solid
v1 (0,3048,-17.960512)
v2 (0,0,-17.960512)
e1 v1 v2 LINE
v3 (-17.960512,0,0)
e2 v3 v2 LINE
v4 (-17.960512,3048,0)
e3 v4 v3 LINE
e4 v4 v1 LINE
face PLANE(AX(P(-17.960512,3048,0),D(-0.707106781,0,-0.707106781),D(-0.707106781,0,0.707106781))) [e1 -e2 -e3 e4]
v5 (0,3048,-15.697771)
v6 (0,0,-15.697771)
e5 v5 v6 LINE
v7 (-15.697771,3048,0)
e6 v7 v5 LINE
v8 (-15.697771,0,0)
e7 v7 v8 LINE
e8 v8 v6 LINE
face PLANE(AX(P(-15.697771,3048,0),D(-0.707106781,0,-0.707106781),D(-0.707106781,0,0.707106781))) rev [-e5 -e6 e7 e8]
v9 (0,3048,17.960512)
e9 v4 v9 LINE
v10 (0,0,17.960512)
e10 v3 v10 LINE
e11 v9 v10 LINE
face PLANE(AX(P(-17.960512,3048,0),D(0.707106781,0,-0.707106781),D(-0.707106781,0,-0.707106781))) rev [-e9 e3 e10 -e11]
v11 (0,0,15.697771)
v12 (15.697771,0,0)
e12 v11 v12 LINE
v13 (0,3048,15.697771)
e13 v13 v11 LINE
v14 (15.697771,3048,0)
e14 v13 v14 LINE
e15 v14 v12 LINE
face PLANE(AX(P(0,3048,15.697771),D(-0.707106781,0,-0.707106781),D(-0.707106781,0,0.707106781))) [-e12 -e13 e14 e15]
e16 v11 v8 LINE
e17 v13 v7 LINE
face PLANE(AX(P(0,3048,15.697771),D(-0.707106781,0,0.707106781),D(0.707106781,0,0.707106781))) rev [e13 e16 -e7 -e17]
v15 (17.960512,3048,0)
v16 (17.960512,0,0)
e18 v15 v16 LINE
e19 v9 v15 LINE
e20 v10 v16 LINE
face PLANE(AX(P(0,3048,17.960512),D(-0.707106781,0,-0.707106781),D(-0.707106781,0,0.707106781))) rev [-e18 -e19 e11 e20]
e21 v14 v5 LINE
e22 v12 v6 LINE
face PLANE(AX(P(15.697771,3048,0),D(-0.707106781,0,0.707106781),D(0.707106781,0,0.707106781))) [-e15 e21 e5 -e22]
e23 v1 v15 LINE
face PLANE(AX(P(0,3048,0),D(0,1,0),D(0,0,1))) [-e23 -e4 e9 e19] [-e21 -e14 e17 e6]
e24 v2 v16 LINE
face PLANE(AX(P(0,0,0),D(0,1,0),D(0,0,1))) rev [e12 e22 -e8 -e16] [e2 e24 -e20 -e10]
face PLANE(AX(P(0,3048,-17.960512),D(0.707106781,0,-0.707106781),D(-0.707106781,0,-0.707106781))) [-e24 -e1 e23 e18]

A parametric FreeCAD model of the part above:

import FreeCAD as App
import Part
import Sketcher
Q = App.Units.Quantity

doc = App.newDocument("Part")
body = doc.addObject("PartDesign::Body", "Body")

sketch1 = body.newObject("Sketcher::SketchObject", "Sketch")
sketch1.AttachmentSupport = (doc.getObject("XZ_Plane"), [""])
sketch1.MapMode = "FlatFace"
sketch1.addGeometry(Part.LineSegment(App.Vector(0, -18, 0), App.Vector(-18, 0, 0)), False)
sketch1.addGeometry(Part.LineSegment(App.Vector(-18, 0, 0), App.Vector(0, 18, 0)), False)
sketch1.addGeometry(Part.LineSegment(App.Vector(0, 18, 0), App.Vector(18, 0, 0)), False)
sketch1.addGeometry(Part.LineSegment(App.Vector(18, 0, 0), App.Vector(0, -18, 0)), False)
sketch1.addGeometry(Part.LineSegment(App.Vector(0, 16, 0), App.Vector(-16, 0, 0)), False)
sketch1.addGeometry(Part.LineSegment(App.Vector(-16, 0, 0), App.Vector(0, -16, 0)), False)
sketch1.addGeometry(Part.LineSegment(App.Vector(0, -16, 0), App.Vector(16, 0, 0)), False)
sketch1.addGeometry(Part.LineSegment(App.Vector(16, 0, 0), App.Vector(0, 16, 0)), False)
sketch1.addConstraint(Sketcher.Constraint("Coincident", 0, 2, 1, 1))
sketch1.addConstraint(Sketcher.Constraint("Coincident", 1, 2, 2, 1))
sketch1.addConstraint(Sketcher.Constraint("Coincident", 2, 2, 3, 1))
sketch1.addConstraint(Sketcher.Constraint("Coincident", 3, 2, 0, 1))
sketch1.addConstraint(Sketcher.Constraint("Coincident", 4, 2, 5, 1))
sketch1.addConstraint(Sketcher.Constraint("Coincident", 5, 2, 6, 1))
sketch1.addConstraint(Sketcher.Constraint("Coincident", 6, 2, 7, 1))
sketch1.addConstraint(Sketcher.Constraint("Coincident", 7, 2, 4, 1))
sketch1.addConstraint(Sketcher.Constraint("Symmetric", 0, 2, 2, 2, -1, 1))
sketch1.addConstraint(Sketcher.Constraint("Symmetric", 1, 2, 3, 2, -1, 1))
sketch1.addConstraint(Sketcher.Constraint("Symmetric", 4, 2, 6, 2, -1, 1))
sketch1.addConstraint(Sketcher.Constraint("Symmetric", 5, 2, 7, 2, -1, 1))
sketch1.addConstraint(Sketcher.Constraint("PointOnObject", 0, 2, -1))
sketch1.addConstraint(Sketcher.Constraint("PointOnObject", 1, 2, -2))
sketch1.addConstraint(Sketcher.Constraint("PointOnObject", 4, 2, -1))
sketch1.addConstraint(Sketcher.Constraint("PointOnObject", 5, 2, -2))
sketch1.addConstraint(Sketcher.Constraint("Perpendicular", 0, 1))
sketch1.addConstraint(Sketcher.Constraint("Parallel", 3, 4))
sketch1.addConstraint(Sketcher.Constraint("Distance", 0, Q("1 in")))
sketch1.addConstraint(Sketcher.Constraint("Distance", 4, 22.2))
pad1 = body.newObject("PartDesign::Pad", "Pad")
pad1.Profile = sketch1
pad1.Length = Q("120 in")
pad1.Reversed = True

doc.recompute()
